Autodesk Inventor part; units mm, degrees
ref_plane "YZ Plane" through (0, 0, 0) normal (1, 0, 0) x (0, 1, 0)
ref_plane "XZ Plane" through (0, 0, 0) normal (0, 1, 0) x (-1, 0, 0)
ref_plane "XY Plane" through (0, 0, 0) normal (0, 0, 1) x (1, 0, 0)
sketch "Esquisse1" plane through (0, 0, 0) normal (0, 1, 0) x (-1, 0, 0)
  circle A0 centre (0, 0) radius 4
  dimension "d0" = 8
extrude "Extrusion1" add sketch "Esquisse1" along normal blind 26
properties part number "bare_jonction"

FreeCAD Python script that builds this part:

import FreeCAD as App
import Part
import Sketcher
Q = App.Units.Quantity

doc = App.newDocument("Part")
body = doc.addObject("PartDesign::Body", "Body")

sketch1 = body.newObject("Sketcher::SketchObject", "Sketch")
sketch1.AttachmentSupport = (doc.getObject("XZ_Plane"), [""])
sketch1.MapMode = "FlatFace"
sketch1.addGeometry(Part.Circle(App.Vector(0, 0, 0), App.Vector(0, 0, 1), 4), False)
sketch1.addConstraint([
    Sketcher.Constraint("Coincident", 0, 3, -1, 1),
    Sketcher.Constraint("Diameter", 0, Q("8 mm")),
])
pad1 = body.newObject("PartDesign::Pad", "Pad")
pad1.Profile = sketch1
pad1.Length = 26
pad1.Reversed = True

doc.recompute()
